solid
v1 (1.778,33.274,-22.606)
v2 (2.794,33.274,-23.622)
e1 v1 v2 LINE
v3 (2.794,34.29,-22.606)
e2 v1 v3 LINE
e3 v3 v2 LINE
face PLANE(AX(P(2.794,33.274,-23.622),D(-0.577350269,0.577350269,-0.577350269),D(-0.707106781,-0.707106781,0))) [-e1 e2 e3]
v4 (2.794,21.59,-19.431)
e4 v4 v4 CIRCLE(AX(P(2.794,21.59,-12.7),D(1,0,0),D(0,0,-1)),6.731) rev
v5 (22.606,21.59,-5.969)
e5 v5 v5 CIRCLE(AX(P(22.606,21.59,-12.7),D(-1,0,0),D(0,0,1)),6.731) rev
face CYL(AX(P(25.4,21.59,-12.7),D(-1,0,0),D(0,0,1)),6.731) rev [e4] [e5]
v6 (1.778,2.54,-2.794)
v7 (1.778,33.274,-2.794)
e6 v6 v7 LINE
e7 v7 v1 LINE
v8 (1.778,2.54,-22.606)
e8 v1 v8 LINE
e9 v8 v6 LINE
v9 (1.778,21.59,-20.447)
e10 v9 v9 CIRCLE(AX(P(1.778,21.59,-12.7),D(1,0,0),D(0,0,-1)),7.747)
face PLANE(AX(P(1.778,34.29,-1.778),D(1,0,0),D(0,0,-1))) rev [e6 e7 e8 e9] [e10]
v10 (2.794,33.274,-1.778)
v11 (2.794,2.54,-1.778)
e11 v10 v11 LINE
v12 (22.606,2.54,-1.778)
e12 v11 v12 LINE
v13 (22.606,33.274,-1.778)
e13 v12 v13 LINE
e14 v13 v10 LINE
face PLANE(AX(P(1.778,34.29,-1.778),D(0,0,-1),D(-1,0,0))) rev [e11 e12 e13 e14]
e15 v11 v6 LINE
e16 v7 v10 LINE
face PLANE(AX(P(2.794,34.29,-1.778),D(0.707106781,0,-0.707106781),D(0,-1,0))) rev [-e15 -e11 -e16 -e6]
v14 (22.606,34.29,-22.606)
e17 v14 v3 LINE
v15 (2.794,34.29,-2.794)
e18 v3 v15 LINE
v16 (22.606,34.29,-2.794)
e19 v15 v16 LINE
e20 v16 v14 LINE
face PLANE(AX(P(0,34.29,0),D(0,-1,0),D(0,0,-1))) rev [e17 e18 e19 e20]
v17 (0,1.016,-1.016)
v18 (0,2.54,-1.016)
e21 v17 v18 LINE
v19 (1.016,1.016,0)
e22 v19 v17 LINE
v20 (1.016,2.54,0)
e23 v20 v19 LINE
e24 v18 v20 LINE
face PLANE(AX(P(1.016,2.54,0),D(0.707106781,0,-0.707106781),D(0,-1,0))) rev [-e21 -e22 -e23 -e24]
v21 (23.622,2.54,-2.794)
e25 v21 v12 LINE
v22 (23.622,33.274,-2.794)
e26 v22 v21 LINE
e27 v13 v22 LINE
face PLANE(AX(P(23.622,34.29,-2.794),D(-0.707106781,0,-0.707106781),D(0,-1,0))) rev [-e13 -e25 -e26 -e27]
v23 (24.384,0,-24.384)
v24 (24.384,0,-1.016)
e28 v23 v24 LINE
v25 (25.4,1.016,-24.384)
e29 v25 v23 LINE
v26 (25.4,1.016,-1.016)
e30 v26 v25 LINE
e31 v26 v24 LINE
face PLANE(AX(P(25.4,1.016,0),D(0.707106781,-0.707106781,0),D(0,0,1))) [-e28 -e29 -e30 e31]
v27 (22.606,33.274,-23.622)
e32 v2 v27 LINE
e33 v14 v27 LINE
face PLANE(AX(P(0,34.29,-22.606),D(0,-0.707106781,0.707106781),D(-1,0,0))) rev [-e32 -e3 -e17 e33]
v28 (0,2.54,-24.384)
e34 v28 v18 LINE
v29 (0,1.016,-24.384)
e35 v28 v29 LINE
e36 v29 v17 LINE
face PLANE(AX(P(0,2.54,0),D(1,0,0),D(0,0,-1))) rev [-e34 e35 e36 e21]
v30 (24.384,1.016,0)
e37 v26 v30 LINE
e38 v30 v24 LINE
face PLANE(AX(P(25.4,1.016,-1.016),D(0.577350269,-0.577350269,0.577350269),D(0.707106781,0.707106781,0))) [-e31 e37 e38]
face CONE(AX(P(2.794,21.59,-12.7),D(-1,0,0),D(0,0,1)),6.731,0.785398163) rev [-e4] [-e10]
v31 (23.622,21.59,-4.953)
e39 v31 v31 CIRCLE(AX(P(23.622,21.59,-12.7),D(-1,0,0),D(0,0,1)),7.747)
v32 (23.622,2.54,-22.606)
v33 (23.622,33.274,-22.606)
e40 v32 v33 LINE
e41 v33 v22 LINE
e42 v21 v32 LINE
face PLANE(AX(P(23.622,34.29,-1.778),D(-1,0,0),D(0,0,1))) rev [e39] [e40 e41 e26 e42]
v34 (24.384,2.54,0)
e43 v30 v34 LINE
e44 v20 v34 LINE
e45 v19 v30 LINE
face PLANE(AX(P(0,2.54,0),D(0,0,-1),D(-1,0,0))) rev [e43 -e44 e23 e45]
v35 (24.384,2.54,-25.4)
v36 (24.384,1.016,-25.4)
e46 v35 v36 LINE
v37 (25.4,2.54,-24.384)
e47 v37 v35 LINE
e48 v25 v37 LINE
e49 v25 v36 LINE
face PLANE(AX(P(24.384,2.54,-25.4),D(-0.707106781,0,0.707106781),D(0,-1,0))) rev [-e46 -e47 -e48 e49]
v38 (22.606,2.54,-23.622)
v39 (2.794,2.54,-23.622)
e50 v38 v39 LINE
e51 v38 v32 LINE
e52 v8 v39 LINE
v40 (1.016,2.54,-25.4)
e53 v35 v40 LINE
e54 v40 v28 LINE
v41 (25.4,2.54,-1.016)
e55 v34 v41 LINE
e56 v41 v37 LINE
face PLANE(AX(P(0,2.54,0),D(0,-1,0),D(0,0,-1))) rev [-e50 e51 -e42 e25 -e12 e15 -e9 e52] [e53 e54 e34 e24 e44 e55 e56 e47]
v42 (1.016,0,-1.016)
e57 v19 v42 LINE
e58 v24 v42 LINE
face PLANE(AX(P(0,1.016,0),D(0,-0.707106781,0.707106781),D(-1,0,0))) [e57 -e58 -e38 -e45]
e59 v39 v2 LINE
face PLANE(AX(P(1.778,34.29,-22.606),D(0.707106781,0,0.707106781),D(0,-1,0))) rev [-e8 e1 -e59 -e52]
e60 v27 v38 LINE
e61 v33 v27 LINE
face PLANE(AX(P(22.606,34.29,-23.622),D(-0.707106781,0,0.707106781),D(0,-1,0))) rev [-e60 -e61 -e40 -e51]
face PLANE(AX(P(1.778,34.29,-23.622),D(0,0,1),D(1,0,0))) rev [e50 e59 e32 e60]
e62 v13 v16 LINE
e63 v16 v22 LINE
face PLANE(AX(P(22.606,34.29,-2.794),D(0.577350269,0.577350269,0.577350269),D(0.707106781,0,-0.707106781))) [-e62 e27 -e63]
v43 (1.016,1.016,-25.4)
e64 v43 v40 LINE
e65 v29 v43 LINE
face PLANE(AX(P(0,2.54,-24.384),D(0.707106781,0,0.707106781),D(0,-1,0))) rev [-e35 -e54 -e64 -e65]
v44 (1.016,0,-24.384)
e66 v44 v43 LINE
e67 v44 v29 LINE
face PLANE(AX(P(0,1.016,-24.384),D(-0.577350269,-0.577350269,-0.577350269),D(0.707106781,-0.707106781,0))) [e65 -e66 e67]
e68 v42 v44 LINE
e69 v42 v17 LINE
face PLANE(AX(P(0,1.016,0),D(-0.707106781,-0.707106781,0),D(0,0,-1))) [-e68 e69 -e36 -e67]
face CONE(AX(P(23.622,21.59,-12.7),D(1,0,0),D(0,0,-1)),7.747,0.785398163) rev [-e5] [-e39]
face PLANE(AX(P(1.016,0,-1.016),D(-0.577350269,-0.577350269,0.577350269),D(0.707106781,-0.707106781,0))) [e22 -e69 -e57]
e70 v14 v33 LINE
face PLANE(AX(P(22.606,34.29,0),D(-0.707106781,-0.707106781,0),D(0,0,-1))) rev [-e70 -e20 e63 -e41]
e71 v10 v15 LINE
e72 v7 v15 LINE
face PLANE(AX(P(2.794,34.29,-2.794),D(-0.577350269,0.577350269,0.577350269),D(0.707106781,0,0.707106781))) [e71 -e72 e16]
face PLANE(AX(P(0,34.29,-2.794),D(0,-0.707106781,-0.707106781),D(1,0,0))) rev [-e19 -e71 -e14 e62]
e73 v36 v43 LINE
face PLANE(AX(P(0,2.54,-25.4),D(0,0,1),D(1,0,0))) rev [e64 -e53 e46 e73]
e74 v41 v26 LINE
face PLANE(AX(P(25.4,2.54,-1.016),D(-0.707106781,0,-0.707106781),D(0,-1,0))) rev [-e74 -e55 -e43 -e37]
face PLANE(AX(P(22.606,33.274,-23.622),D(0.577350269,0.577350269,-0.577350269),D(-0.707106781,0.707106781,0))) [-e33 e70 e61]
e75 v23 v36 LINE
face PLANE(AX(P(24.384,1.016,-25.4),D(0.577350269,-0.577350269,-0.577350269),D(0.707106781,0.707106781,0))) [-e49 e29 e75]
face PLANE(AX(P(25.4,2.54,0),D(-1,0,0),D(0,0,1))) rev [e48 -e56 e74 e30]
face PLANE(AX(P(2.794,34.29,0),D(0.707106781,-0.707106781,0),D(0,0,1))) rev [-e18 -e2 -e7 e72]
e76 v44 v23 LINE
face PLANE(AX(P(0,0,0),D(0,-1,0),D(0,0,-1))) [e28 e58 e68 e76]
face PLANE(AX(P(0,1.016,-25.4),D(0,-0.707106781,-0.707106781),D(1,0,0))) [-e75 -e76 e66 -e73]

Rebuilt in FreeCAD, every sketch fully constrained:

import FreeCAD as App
import Part
import Sketcher
Q = App.Units.Quantity


def edges_at(feature, points):
    """Names of the edges that pass closest to the given points."""
    edges = feature.Shape.Edges
    near = lambda p: min(range(len(edges)), key=lambda i: edges[i].distToShape(Part.Vertex(*p))[0])
    return sorted({f"Edge{near(p) + 1}" for p in points})

doc = App.newDocument("Part")
body = doc.addObject("PartDesign::Body", "Body")

sketch1 = doc.addObject("Sketcher::SketchObject", "Sketch")
body.addObject(sketch1)
sketch1.AttachmentSupport = (doc.XZ_Plane, [""])
sketch1.MapMode = "FlatFace"
sketch1.addGeometry(Part.LineSegment(App.Vector(0, -25, 0), App.Vector(0, 0, 0)), False)
sketch1.addGeometry(Part.LineSegment(App.Vector(0, 0, 0), App.Vector(25, 0, 0)), False)
sketch1.addGeometry(Part.LineSegment(App.Vector(25, 0, 0), App.Vector(25, -25, 0)), False)
sketch1.addGeometry(Part.LineSegment(App.Vector(25, -25, 0), App.Vector(0, -25, 0)), False)
sketch1.addConstraint(Sketcher.Constraint("Coincident", 0, 2, 1, 1))
sketch1.addConstraint(Sketcher.Constraint("Coincident", 1, 2, 2, 1))
sketch1.addConstraint(Sketcher.Constraint("Coincident", 2, 2, 3, 1))
sketch1.addConstraint(Sketcher.Constraint("Coincident", 3, 2, 0, 1))
sketch1.addConstraint(Sketcher.Constraint("Vertical", 0))
sketch1.addConstraint(Sketcher.Constraint("Horizontal", 1))
sketch1.addConstraint(Sketcher.Constraint("Vertical", 2))
sketch1.addConstraint(Sketcher.Constraint("Horizontal", 3))
sketch1.addConstraint(Sketcher.Constraint("Coincident", 0, 2, -1, 1))
sketch1.addConstraint(Sketcher.Constraint("Equal", 3, 0))
sketch1.addConstraint(Sketcher.Constraint("DistanceX", 1, 1, 1, 2, Q("1 in")))
pad1 = doc.addObject("PartDesign::Pad", "Pad")
body.addObject(pad1)
pad1.Profile = sketch1
pad1.Length = Q("0.1 in")
pad1.Reversed = True

sketch2 = doc.addObject("Sketcher::SketchObject", "Sketch001")
body.addObject(sketch2)
sketch2.AttachmentSupport = (doc.XZ_Plane, [""])
sketch2.MapMode = "FlatFace"
sketch2.AttachmentOffset = App.Placement(App.Vector(0, 0, -0.1 * 25.4), App.Rotation())
sketch2.addGeometry(Part.LineSegment(App.Vector(2, -24, 0), App.Vector(2, -2, 0)), False)
sketch2.addGeometry(Part.LineSegment(App.Vector(2, -2, 0), App.Vector(24, -2, 0)), False)
sketch2.addGeometry(Part.LineSegment(App.Vector(24, -2, 0), App.Vector(24, -24, 0)), False)
sketch2.addGeometry(Part.LineSegment(App.Vector(24, -24, 0), App.Vector(2, -24, 0)), False)
sketch2.addConstraint(Sketcher.Constraint("Coincident", 0, 2, 1, 1))
sketch2.addConstraint(Sketcher.Constraint("Coincident", 1, 2, 2, 1))
sketch2.addConstraint(Sketcher.Constraint("Coincident", 2, 2, 3, 1))
sketch2.addConstraint(Sketcher.Constraint("Coincident", 3, 2, 0, 1))
sketch2.addConstraint(Sketcher.Constraint("Vertical", 0))
sketch2.addConstraint(Sketcher.Constraint("Horizontal", 1))
sketch2.addConstraint(Sketcher.Constraint("Vertical", 2))
sketch2.addConstraint(Sketcher.Constraint("Horizontal", 3))
sketch2.addConstraint(Sketcher.Constraint("Equal", 3, 0))
sketch2.addConstraint(Sketcher.Constraint("DistanceX", 1, 1, 1, 2, Q("0.86 in")))
sketch2.addConstraint(Sketcher.Constraint("DistanceX", -1, 1, 0, 2, Q("0.07 in")))
sketch2.addConstraint(Sketcher.Constraint("DistanceY", 0, 2, -1, 1, Q("0.07 in")))
pad2 = doc.addObject("PartDesign::Pad", "Pad001")
body.addObject(pad2)
pad2.Profile = sketch2
pad2.Length = Q("1.25 in")
pad2.Reversed = True

sketch3 = doc.addObject("Sketcher::SketchObject", "Sketch002")
body.addObject(sketch3)
sketch3.AttachmentSupport = (doc.YZ_Plane, [""])
sketch3.MapMode = "FlatFace"
sketch3.AttachmentOffset = App.Placement(App.Vector(0, 0, 0.07 * 25.4), App.Rotation())
sketch3.addGeometry(Part.Circle(App.Vector(22, -13, 0), App.Vector(0, 0, 1), 7), False)
sketch3.addConstraint(Sketcher.Constraint("Diameter", 0, Q("0.53 in")))
sketch3.addConstraint(Sketcher.Constraint("DistanceY", 0, 3, -1, 1, Q("0.5 in")))
sketch3.addConstraint(Sketcher.Constraint("DistanceX", -1, 1, 0, 3, Q("0.85 in")))
pocket1 = doc.addObject("PartDesign::Pocket", "Pocket")
body.addObject(pocket1)
pocket1.Profile = sketch3
pocket1.Type = "ThroughAll"
pocket1.Reversed = True
doc.recompute()

chamfer = doc.addObject("PartDesign::Chamfer", "Chamfer")
body.addObject(chamfer)
chamfer.Base = (pocket1, edges_at(pocket1, [
    (1.778, 18.415, -23.622),
    (1.778, 18.415, -1.778),
    (23.622, 18.415, -1.778),
    (23.622, 18.415, -23.622),
    (1.778, 34.29, -12.7),
    (12.7, 34.29, -1.778),
    (23.622, 34.29, -12.7),
    (12.7, 34.29, -23.622),
    (23.622, 21.59, -19.431),
    (1.778, 21.59, -19.431),
    (12.7, 0, -25.4),
    (25.4, 0, -12.7),
    (12.7, 0, 0),
    (0, 0, -12.7),
    (0, 1.27, -25.4),
    (25.4, 1.27, -25.4),
    (25.4, 1.27, 0),
    (0, 1.27, 0),
]))
chamfer.Size = Q("0.04 in")

doc.recompute()
